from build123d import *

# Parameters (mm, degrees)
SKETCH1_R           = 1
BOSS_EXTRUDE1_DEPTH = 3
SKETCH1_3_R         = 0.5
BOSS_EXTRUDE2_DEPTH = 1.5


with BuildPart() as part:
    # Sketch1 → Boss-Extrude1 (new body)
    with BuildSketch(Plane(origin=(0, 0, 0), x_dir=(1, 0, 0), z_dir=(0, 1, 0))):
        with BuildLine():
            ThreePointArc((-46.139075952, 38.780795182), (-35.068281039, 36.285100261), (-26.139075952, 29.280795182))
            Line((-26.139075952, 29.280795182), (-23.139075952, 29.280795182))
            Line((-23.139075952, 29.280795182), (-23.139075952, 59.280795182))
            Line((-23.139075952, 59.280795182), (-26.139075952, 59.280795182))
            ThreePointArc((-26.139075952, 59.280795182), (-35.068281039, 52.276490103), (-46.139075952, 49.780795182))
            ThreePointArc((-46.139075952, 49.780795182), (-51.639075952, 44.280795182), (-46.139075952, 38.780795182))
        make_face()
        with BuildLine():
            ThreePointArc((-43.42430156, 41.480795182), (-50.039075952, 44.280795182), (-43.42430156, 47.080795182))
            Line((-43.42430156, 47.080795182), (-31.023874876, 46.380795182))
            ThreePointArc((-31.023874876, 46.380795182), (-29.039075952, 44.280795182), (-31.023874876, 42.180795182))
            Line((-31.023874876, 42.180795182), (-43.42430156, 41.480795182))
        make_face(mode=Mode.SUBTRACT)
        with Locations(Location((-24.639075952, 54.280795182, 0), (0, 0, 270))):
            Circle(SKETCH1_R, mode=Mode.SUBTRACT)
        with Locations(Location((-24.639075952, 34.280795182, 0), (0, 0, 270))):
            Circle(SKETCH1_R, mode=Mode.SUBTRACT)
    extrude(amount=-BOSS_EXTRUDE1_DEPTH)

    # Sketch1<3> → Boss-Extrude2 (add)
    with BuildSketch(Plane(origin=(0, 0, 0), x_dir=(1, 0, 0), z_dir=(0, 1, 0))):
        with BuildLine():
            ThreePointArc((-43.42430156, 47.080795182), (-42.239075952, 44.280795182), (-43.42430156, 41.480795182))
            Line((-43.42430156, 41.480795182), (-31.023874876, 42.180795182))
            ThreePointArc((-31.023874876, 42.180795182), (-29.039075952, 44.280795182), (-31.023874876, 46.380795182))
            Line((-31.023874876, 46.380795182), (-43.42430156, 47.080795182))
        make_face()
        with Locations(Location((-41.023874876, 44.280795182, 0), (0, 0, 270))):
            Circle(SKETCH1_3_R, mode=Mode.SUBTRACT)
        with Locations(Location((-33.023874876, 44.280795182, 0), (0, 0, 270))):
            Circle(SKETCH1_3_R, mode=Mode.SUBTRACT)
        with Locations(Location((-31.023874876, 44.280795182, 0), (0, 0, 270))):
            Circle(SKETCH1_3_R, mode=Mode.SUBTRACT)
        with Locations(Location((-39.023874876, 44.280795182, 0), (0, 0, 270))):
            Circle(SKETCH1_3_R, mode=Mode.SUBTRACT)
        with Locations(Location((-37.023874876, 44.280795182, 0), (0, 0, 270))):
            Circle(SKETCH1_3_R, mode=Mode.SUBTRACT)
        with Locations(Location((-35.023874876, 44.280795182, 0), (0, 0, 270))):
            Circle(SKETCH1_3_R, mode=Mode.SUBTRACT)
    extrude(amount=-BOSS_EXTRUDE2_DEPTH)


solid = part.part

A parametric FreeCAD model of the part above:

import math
import FreeCAD as App
import Part
import Sketcher
from FreeCAD import Vector
Q = App.Units.Quantity

doc = App.newDocument("Part")
body = doc.addObject("PartDesign::Body", "Body")

# Sketch on XZ plane
sketch1 = doc.addObject("Sketcher::SketchObject", "Sketch")
body.addObject(sketch1)
sketch1.AttachmentSupport = (doc.XZ_Plane, [""])
sketch1.MapMode = "FlatFace"
sketch1.addGeometry([
    Part.ArcOfCircle(Part.Circle(Vector(-46.139076, -12.978164, 0), Vector(0, 0, 1), 25.802632), math.radians(-90), math.radians(-39.184564)),  # 0
    Part.LineSegment(Vector(-26.139076, -29.280795, 0), Vector(-23.139076, -29.280795, 0)),  # 1
    Part.LineSegment(Vector(-23.139076, -29.280795, 0), Vector(-23.139076, -59.280795, 0)),  # 2
    Part.LineSegment(Vector(-23.139076, -59.280795, 0), Vector(-26.139076, -59.280795, 0)),  # 3
    Part.ArcOfCircle(Part.Circle(Vector(-46.139076, -75.583427, 0), Vector(0, 0, 1), 25.802632), math.radians(39.184564), math.radians(90)),  # 4
    Part.ArcOfCircle(Part.Circle(Vector(-46.139076, -44.280795, 0), Vector(0, 0, 1), 5.5), math.radians(90), math.radians(270)),  # 5
    Part.Circle(Vector(-24.639076, -34.280795, 0), Vector(0, 0, 1), 1),  # 6
    Part.LineSegment(Vector(-31.023875, -42.180795, 0), Vector(-43.424302, -41.480795, 0)),  # 7
    Part.ArcOfCircle(Part.Circle(Vector(-46.139076, -44.280795, 0), Vector(0, 0, 1), 3.9), math.radians(45.885381), math.radians(314.114619)),  # 8
    Part.LineSegment(Vector(-43.424302, -47.080795, 0), Vector(-31.023875, -46.380795, 0)),  # 9
    Part.ArcOfCircle(Part.Circle(Vector(-31.142419, -44.280795, 0), Vector(0, 0, 1), 2.103343), math.radians(-86.769101), math.radians(86.769101)),  # 10
    Part.Circle(Vector(-24.639076, -54.280795, 0), Vector(0, 0, 1), 1),  # 11
], False)
sketch1.addConstraint([
    Sketcher.Constraint("Coincident", 0, 2, 1, 1),
    Sketcher.Constraint("Coincident", 1, 2, 2, 1),
    Sketcher.Constraint("Coincident", 2, 2, 3, 1),
    Sketcher.Constraint("Coincident", 3, 2, 4, 1),
    Sketcher.Constraint("Tangent", 4, 2, 5, 2),
    Sketcher.Constraint("Tangent", 5, 1, 0, 1),
    Sketcher.Constraint("Coincident", 7, 2, 8, 1),
    Sketcher.Constraint("Coincident", 8, 2, 9, 1),
    Sketcher.Constraint("Tangent", 9, 2, 10, 1),
    Sketcher.Constraint("Tangent", 10, 2, 7, 1),
    Sketcher.Constraint("Horizontal", 1),
    Sketcher.Constraint("Vertical", 2),
    Sketcher.Constraint("Horizontal", 3),
    Sketcher.Constraint("Coincident", 8, 3, 5, 3),
    Sketcher.Constraint("Equal", 0, 4),
    Sketcher.Constraint("Equal", 6, 11),
    Sketcher.Constraint("Horizontal", 8, 3, 10, 3),
    Sketcher.Constraint("Vertical", 0, 3, 4, 3),
    Sketcher.Constraint("Vertical", 4, 3, 5, 3),
    Sketcher.Constraint("Vertical", 6, 3, 11, 3),
    Sketcher.Constraint("Vertical", 0, 2, 3, 2),
    Sketcher.Constraint("Vertical", 7, 2, 8, 2),
    Sketcher.Constraint("Diameter", 6, Q("2 mm")),
    Sketcher.Constraint("Radius", 5, Q("5.5 mm")),
    Sketcher.Constraint("Radius", 8, Q("3.9 mm")),
    Sketcher.Constraint("DistanceX", 1, 1, 1, 2, Q("3 mm")),
    Sketcher.Constraint("DistanceY", 2, 2, 2, 1, Q("30 mm")),
    Sketcher.Constraint("DistanceY", 5, 3, 6, 3, Q("10 mm")),
    Sketcher.Constraint("DistanceY", 11, 3, 10, 3, Q("10 mm")),
    Sketcher.Constraint("DistanceX", 5, 3, 0, 2, Q("20 mm")),
    Sketcher.Constraint("DistanceX", 5, 3, 6, 3, Q("21.5 mm")),
    Sketcher.Constraint("DistanceY", 7, 2, 5, 1, Q("2.7 mm")),
    Sketcher.Constraint("DistanceY", 9, 2, 10, 3, Q("2.1 mm")),
    Sketcher.Constraint("DistanceX", 7, 2, -1, 1, Q("43.424302 mm")),
    Sketcher.Constraint("DistanceX", 9, 2, 11, 3, Q("6.384799 mm")),
    Sketcher.Constraint("DistanceY", 0, 3, -1, 1, Q("12.978164 mm")),
])
pad1 = doc.addObject("PartDesign::Pad", "Pad")
body.addObject(pad1)
pad1.Profile = sketch1
pad1.Length = 3

# Sketch on XZ plane
sketch2 = doc.addObject("Sketcher::SketchObject", "Sketch001")
body.addObject(sketch2)
sketch2.AttachmentSupport = (doc.XZ_Plane, [""])
sketch2.MapMode = "FlatFace"
sketch2.addGeometry([
    Part.ArcOfCircle(Part.Circle(Vector(-46.139076, -44.280795, 0), Vector(0, 0, 1), 3.9), math.radians(-45.885381), math.radians(45.885381)),  # 0
    Part.LineSegment(Vector(-43.424302, -41.480795, 0), Vector(-31.023875, -42.180795, 0)),  # 1
    Part.ArcOfCircle(Part.Circle(Vector(-31.142419, -44.280795, 0), Vector(0, 0, 1), 2.103343), math.radians(-86.769101), math.radians(86.769101)),  # 2
    Part.LineSegment(Vector(-31.023875, -46.380795, 0), Vector(-43.424302, -47.080795, 0)),  # 3
    Part.Circle(Vector(-41.023875, -44.280795, 0), Vector(0, 0, 1), 0.5),  # 4
    Part.Circle(Vector(-39.023875, -44.280795, 0), Vector(0, 0, 1), 0.5),  # 5
    Part.Circle(Vector(-37.023875, -44.280795, 0), Vector(0, 0, 1), 0.5),  # 6
    Part.Circle(Vector(-35.023875, -44.280795, 0), Vector(0, 0, 1), 0.5),  # 7
    Part.Circle(Vector(-33.023875, -44.280795, 0), Vector(0, 0, 1), 0.5),  # 8
    Part.Circle(Vector(-31.023875, -44.280795, 0), Vector(0, 0, 1), 0.5),  # 9
], False)
sketch2.addConstraint([
    Sketcher.Constraint("Coincident", 0, 2, 1, 1),
    Sketcher.Constraint("Tangent", 1, 2, 2, 2),
    Sketcher.Constraint("Tangent", 2, 1, 3, 1),
    Sketcher.Constraint("Coincident", 3, 2, 0, 1),
    Sketcher.Constraint("Equal", 4, 5),
    Sketcher.Constraint("Equal", 5, 6),
    Sketcher.Constraint("Equal", 6, 7),
    Sketcher.Constraint("Equal", 7, 8),
    Sketcher.Constraint("Equal", 8, 9),
    Sketcher.Constraint("Horizontal", 0, 3, 2, 3),
    Sketcher.Constraint("Horizontal", 2, 3, 4, 3),
    Sketcher.Constraint("Horizontal", 4, 3, 5, 3),
    Sketcher.Constraint("Horizontal", 5, 3, 6, 3),
    Sketcher.Constraint("Horizontal", 6, 3, 7, 3),
    Sketcher.Constraint("Horizontal", 7, 3, 8, 3),
    Sketcher.Constraint("Horizontal", 8, 3, 9, 3),
    Sketcher.Constraint("Vertical", 9, 3, 1, 2),
    Sketcher.Constraint("Vertical", 1, 2, 2, 1),
    Sketcher.Constraint("Diameter", 4, Q("1 mm")),
    Sketcher.Constraint("Radius", 0, Q("3.9 mm")),
    Sketcher.Constraint("DistanceX", 4, 3, 5, 3, Q("2 mm")),
    Sketcher.Constraint("DistanceX", 5, 3, 6, 3, Q("2 mm")),
    Sketcher.Constraint("DistanceX", 6, 3, 7, 3, Q("2 mm")),
    Sketcher.Constraint("DistanceX", 7, 3, 8, 3, Q("2 mm")),
    Sketcher.Constraint("DistanceX", 8, 3, 9, 3, Q("2 mm")),
    Sketcher.Constraint("DistanceY", 4, 3, 0, 2, Q("2.8 mm")),
    Sketcher.Constraint("DistanceY", 9, 3, 1, 2, Q("2.1 mm")),
    Sketcher.Constraint("DistanceX", 0, 2, -1, 1, Q("43.424302 mm")),
    Sketcher.Constraint("DistanceX", 0, 3, 4, 3, Q("5.115201 mm")),
    Sketcher.Constraint("DistanceY", 0, 3, -1, 1, Q("44.280795 mm")),
])
pad2 = doc.addObject("PartDesign::Pad", "Pad001")
body.addObject(pad2)
pad2.Profile = sketch2
pad2.Length = 1.5

doc.recompute()
